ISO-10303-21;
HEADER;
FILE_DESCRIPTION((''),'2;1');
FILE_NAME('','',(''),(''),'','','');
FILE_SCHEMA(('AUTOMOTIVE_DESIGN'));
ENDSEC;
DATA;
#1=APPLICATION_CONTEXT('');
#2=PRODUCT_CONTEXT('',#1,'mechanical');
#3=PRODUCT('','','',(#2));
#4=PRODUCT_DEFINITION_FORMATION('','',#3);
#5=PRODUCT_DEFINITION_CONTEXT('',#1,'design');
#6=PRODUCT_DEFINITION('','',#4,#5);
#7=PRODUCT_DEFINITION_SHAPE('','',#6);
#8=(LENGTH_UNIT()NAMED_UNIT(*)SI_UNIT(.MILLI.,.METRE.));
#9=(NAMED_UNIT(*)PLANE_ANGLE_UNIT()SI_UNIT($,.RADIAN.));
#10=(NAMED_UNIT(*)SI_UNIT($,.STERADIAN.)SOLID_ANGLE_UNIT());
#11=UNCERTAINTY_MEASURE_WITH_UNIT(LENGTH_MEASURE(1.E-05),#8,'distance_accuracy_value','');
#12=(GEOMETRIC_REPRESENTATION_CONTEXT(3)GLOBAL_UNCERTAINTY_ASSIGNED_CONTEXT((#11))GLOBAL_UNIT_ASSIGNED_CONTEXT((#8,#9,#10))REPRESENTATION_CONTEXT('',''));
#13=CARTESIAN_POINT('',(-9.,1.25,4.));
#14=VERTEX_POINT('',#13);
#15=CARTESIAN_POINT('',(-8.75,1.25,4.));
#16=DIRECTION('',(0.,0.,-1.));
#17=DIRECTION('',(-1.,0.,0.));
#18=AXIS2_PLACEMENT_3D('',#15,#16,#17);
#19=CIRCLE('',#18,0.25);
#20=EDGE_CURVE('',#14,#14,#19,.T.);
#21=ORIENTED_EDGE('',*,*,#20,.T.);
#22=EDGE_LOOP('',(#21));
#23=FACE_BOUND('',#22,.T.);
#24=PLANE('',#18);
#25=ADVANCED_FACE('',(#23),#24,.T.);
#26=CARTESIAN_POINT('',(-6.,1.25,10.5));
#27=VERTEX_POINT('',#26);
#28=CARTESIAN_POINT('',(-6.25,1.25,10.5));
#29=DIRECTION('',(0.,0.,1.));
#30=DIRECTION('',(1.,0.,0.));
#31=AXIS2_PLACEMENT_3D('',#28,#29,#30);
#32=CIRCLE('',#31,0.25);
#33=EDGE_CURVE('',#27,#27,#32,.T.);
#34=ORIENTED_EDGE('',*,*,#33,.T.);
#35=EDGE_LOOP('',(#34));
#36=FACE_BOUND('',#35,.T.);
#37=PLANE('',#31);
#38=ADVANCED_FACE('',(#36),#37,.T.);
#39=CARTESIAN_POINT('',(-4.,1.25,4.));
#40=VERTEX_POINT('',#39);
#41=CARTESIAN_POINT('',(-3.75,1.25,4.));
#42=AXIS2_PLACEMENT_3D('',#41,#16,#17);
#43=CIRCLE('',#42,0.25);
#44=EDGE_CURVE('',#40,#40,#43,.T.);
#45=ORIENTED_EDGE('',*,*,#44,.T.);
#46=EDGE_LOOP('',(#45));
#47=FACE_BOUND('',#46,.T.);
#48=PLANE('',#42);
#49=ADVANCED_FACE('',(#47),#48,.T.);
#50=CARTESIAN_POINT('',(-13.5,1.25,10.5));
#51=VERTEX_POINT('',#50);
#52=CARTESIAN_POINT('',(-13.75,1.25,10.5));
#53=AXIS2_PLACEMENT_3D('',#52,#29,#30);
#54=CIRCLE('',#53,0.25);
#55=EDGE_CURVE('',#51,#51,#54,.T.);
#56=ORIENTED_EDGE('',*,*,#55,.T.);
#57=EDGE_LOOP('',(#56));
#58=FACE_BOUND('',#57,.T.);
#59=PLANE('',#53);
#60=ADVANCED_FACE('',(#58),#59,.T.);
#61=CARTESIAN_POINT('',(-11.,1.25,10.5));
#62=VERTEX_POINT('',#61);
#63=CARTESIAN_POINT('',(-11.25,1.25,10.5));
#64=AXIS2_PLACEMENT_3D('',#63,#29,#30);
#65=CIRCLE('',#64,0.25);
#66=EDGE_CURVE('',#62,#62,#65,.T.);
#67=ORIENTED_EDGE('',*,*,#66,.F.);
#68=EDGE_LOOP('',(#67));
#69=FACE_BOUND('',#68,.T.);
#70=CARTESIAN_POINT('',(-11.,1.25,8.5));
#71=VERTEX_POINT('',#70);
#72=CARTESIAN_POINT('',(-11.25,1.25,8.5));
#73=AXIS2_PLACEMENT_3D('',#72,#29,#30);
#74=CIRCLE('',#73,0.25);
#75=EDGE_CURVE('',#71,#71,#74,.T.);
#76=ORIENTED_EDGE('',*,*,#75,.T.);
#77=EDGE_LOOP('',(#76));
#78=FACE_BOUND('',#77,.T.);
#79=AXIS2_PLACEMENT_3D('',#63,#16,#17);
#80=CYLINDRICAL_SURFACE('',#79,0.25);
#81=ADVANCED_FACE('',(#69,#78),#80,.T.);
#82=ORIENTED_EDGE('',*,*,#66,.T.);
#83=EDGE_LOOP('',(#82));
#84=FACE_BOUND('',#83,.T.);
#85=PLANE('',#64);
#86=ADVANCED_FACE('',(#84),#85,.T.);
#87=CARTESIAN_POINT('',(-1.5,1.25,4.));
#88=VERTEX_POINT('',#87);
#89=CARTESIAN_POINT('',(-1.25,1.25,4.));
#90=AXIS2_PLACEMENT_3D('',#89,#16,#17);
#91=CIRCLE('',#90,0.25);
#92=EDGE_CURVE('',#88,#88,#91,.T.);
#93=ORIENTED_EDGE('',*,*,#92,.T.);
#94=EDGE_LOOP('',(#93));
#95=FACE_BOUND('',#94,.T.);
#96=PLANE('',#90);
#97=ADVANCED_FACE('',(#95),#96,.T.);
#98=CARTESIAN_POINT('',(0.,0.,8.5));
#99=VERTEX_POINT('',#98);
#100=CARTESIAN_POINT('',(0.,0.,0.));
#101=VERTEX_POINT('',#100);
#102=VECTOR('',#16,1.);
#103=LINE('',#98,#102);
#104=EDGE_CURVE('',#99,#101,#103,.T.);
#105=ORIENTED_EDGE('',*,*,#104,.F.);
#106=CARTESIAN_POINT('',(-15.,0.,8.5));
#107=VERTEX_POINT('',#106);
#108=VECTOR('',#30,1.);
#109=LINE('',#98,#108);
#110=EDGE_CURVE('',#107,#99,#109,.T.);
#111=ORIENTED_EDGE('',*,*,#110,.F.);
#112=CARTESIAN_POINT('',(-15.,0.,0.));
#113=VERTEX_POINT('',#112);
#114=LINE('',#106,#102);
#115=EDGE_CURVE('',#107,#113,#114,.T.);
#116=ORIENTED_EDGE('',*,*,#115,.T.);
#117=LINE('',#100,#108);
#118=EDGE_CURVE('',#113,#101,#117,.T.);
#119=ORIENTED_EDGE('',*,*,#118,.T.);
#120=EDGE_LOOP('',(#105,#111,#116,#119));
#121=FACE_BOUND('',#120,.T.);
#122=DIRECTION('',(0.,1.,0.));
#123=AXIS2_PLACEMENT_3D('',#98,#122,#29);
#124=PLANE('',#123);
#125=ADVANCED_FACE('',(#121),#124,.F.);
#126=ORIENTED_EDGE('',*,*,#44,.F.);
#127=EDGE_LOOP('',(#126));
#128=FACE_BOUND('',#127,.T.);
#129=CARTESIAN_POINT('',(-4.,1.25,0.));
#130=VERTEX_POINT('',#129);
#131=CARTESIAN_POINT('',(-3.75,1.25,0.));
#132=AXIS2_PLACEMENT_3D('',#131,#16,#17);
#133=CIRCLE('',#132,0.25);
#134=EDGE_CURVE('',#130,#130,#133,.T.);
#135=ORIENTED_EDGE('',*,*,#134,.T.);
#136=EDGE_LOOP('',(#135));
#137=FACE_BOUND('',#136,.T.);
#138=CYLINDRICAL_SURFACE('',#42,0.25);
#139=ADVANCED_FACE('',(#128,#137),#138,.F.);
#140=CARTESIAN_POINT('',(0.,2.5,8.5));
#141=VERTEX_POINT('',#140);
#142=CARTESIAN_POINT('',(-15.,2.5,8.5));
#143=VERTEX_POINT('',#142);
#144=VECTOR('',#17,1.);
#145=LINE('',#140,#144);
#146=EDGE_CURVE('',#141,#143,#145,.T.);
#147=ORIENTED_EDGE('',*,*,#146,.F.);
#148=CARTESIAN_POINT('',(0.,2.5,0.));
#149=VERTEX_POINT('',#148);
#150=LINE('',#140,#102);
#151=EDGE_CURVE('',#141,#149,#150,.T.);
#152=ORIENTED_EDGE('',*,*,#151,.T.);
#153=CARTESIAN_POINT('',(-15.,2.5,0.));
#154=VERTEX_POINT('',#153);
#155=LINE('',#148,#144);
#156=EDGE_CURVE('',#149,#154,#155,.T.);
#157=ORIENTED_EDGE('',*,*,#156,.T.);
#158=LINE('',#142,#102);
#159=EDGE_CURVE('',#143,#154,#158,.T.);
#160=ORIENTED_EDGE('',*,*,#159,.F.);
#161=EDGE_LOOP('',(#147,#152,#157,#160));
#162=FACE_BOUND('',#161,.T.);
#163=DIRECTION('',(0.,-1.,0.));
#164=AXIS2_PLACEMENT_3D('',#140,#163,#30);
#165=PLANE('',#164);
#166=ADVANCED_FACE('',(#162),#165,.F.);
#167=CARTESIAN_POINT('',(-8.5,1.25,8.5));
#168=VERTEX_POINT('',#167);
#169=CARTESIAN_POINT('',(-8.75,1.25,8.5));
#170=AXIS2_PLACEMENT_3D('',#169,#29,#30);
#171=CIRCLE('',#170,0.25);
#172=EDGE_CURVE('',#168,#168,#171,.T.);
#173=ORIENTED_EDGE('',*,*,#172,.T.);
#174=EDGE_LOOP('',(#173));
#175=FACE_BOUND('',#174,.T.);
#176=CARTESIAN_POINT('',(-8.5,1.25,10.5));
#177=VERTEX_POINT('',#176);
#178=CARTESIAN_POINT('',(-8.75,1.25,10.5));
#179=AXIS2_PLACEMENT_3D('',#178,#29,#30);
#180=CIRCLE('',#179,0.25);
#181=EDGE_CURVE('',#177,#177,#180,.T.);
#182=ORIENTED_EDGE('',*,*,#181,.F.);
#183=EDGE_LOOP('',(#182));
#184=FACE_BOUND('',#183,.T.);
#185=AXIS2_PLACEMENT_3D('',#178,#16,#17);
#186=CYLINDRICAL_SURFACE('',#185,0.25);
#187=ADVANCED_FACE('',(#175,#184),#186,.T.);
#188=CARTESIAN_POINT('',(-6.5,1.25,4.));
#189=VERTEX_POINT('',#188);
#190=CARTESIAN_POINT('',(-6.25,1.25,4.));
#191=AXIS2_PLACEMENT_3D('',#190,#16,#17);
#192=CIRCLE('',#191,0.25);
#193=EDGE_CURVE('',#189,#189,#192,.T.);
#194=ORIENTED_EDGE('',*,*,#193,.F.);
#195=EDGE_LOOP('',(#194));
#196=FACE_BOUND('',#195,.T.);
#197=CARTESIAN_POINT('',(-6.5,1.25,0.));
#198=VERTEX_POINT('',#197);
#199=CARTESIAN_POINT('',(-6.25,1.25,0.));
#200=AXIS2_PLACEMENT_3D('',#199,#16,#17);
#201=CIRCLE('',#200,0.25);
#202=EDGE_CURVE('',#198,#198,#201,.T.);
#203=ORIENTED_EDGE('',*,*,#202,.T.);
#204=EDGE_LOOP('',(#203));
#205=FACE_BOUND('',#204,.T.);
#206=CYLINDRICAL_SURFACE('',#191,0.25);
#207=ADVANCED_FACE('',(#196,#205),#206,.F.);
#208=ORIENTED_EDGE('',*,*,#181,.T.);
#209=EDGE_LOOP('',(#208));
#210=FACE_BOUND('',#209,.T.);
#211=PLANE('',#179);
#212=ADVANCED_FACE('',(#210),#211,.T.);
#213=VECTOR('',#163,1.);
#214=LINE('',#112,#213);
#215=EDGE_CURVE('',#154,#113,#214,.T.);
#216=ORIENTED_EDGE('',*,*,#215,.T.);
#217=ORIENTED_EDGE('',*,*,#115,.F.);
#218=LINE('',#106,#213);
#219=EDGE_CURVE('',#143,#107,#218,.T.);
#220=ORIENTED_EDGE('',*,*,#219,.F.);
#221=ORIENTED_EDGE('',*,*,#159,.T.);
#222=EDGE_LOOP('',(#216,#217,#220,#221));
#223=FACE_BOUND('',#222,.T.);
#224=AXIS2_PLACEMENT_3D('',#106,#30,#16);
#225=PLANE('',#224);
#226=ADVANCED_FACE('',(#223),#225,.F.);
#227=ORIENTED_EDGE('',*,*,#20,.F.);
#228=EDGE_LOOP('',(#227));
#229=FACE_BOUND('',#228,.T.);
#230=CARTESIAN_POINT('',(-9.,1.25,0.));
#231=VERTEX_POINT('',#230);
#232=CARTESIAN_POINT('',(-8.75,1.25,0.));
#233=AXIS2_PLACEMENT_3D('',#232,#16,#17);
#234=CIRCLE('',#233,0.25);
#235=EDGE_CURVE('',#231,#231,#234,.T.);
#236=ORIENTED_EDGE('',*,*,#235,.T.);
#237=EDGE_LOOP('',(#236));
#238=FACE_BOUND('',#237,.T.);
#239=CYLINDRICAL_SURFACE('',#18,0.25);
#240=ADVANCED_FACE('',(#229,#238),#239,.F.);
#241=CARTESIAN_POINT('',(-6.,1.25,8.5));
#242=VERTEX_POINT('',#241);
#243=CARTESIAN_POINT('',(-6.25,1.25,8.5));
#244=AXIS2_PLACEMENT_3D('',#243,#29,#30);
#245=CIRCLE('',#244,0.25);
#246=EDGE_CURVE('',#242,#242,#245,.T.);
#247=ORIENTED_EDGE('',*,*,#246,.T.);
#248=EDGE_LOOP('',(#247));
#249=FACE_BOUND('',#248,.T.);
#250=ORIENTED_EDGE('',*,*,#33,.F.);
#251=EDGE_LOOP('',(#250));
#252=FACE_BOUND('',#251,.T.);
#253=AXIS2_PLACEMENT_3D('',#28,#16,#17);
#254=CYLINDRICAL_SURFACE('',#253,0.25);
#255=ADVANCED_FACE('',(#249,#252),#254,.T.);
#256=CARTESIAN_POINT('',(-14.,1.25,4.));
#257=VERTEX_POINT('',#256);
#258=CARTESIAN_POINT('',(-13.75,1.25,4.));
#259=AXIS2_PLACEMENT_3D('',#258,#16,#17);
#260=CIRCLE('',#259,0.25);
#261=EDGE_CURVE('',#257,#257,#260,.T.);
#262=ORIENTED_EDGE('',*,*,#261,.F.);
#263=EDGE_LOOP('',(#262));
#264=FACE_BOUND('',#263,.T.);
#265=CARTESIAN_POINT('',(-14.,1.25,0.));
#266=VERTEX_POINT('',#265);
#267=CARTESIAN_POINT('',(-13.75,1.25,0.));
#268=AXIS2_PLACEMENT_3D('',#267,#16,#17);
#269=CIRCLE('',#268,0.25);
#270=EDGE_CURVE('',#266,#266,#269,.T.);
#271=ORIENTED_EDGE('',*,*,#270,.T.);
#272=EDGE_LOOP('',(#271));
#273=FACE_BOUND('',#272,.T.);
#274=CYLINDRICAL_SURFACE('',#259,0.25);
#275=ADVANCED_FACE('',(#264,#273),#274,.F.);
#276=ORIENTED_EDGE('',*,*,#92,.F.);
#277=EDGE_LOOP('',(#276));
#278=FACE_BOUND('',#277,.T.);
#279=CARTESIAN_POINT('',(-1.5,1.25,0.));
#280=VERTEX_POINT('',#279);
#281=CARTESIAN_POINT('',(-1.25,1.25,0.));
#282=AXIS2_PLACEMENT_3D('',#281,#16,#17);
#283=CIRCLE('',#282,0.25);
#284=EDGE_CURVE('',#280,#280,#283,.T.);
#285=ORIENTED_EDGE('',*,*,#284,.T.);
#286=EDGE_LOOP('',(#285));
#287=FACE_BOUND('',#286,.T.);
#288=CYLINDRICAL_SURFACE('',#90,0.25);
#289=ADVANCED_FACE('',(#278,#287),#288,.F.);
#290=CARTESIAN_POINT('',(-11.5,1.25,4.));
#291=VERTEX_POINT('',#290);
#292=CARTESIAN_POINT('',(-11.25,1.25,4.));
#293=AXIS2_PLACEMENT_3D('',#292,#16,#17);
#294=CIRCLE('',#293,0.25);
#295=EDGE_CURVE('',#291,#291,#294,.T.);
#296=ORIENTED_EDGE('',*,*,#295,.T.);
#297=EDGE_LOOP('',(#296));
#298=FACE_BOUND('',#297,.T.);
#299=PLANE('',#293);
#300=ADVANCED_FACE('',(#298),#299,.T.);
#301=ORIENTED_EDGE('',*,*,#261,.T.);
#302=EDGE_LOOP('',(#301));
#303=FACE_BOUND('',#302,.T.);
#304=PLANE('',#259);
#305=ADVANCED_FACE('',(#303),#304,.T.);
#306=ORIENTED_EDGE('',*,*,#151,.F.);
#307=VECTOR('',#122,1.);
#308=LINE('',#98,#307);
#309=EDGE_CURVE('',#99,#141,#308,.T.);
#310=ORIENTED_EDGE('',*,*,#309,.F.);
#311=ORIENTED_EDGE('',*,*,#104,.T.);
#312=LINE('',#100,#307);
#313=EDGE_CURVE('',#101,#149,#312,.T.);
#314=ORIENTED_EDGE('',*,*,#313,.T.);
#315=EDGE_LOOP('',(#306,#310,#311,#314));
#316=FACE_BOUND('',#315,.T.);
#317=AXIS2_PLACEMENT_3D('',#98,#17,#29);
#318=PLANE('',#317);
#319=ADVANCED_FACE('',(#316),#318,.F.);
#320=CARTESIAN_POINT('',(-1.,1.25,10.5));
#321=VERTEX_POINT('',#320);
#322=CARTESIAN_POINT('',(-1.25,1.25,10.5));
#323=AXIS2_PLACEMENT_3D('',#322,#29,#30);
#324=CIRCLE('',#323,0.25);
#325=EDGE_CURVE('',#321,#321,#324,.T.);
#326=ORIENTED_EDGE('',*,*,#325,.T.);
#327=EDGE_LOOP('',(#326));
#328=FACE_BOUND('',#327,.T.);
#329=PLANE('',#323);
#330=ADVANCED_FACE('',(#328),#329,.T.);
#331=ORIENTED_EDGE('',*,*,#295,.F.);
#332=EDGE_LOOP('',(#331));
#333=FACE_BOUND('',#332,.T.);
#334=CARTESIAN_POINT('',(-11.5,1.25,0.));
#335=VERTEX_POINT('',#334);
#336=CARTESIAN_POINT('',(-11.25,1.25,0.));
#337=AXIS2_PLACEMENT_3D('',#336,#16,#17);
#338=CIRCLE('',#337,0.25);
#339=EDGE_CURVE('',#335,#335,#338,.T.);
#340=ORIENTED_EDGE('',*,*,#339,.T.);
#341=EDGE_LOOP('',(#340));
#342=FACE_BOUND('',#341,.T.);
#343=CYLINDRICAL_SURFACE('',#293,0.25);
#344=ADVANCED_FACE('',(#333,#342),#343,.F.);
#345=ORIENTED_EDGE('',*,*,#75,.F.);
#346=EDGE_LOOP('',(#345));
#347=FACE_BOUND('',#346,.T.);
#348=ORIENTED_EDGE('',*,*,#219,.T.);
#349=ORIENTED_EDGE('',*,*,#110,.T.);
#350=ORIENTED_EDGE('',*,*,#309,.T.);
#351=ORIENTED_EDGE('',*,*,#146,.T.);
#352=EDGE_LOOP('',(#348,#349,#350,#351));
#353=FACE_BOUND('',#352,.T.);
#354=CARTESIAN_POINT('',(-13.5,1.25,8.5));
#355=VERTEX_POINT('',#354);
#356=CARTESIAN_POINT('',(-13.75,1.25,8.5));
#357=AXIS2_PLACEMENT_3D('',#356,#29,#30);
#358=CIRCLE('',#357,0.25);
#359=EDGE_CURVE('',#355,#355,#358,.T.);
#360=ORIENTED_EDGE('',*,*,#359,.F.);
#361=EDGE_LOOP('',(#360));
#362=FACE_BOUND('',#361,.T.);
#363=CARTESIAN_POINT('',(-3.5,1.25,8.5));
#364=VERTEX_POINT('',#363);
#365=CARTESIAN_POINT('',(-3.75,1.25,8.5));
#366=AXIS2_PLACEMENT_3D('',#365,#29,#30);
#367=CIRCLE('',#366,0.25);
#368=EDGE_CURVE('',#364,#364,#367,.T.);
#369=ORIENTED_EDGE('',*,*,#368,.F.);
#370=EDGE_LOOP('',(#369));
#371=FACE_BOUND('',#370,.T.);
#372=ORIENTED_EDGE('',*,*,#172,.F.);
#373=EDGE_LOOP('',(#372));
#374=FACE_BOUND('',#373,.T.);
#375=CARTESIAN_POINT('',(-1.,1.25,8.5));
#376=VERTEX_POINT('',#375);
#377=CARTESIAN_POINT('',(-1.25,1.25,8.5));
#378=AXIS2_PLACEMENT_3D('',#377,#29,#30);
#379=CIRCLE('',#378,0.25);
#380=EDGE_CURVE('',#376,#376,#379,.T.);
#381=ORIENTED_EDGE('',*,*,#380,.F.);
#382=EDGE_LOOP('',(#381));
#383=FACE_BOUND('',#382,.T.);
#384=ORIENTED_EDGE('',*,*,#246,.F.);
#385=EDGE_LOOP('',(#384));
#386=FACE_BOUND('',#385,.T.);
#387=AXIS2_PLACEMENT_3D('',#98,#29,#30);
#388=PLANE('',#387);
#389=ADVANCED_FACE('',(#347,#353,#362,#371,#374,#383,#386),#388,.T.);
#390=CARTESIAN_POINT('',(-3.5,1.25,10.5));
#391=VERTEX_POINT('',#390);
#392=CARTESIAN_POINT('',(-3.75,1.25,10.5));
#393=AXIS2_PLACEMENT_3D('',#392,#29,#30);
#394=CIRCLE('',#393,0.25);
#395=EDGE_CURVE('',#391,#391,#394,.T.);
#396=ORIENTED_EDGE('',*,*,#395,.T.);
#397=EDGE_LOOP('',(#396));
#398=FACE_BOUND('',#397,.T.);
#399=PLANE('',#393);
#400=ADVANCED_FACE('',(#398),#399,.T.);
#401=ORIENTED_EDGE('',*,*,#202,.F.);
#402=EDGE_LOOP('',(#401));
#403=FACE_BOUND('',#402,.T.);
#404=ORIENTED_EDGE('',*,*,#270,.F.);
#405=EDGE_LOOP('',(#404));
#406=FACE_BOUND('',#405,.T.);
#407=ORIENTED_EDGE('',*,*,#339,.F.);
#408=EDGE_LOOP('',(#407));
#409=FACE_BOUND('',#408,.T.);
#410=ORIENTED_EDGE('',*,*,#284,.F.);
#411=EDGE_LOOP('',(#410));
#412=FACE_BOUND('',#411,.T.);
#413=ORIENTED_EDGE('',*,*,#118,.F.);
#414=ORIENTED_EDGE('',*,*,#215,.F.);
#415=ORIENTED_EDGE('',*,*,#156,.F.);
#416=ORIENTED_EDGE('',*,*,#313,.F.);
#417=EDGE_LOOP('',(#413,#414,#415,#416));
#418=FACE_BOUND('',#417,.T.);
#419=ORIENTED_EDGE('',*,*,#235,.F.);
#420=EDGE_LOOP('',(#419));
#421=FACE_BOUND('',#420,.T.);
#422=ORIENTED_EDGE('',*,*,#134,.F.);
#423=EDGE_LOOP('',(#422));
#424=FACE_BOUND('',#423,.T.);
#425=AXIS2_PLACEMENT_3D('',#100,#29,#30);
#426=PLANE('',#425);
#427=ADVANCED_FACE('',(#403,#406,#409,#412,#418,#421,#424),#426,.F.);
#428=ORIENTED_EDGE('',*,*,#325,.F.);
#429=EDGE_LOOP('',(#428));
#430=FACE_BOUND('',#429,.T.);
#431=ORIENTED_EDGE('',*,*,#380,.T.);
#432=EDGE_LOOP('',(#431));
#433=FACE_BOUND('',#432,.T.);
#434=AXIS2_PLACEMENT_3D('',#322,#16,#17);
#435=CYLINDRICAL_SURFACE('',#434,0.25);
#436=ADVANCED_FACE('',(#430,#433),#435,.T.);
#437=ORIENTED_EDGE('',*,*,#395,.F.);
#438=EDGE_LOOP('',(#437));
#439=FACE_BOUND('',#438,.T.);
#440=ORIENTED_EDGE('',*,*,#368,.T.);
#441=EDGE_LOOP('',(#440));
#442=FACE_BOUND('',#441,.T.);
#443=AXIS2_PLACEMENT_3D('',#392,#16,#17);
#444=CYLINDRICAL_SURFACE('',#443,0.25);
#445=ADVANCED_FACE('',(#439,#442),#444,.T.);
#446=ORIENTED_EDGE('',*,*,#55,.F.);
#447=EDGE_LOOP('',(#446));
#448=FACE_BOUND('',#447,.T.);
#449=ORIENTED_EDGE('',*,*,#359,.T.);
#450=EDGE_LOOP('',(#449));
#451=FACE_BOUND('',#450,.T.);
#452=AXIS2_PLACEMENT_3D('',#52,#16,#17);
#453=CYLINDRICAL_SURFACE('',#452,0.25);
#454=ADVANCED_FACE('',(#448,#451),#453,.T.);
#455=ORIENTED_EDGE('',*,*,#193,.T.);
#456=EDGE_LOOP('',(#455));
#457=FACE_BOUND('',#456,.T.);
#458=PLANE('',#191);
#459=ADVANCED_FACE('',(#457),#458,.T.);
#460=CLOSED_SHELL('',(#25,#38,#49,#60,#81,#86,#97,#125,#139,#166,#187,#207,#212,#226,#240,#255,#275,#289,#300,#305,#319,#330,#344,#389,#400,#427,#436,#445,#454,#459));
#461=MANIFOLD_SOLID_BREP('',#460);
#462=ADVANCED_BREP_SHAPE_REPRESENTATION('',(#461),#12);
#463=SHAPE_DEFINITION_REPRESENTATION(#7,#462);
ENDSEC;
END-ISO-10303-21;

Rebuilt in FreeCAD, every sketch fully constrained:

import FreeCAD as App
import Part
import Sketcher

V = App.Vector
Q = App.Units.Quantity


def add_polygon(sketch, points):
    """Adds a closed chain of lines whose ends are joined by coincident constraints."""
    first, n = sketch.GeometryCount, len(points)
    for a, b in zip(points, points[1:] + points[:1]):
        sketch.addGeometry(Part.LineSegment(App.Vector(*a, 0), App.Vector(*b, 0)), False)
    for i in range(n):
        sketch.addConstraint(Sketcher.Constraint("Coincident", first + i, 2, first + (i + 1) % n, 1))

doc = App.newDocument("Part")
body = doc.addObject("PartDesign::Body", "Body")

# Sketch on XY plane
sketch1 = body.newObject("Sketcher::SketchObject", "Sketch")
sketch1.AttachmentSupport = (doc.getObject("XY_Plane"), [""])
sketch1.MapMode = "FlatFace"
add_polygon(sketch1, [(-2.5, 2.5), (-2.5, 0), (0, 0), (0, 2.5)])  # lines 0-3
sketch1.addConstraint([
    Sketcher.Constraint("Vertical", 0),
    Sketcher.Constraint("Horizontal", 1),
    Sketcher.Constraint("Vertical", 2),
    Sketcher.Constraint("Horizontal", 3),
    Sketcher.Constraint("Coincident", 1, 2, -1, 1),
    Sketcher.Constraint("Equal", 3, 0),
    Sketcher.Constraint("DistanceX", 1, 1, 1, 2, Q("2.5 mm")),
])
pad1 = body.newObject("PartDesign::Pad", "Pad")
pad1.Profile = sketch1
pad1.Length = 8.5

# Sketch on XY plane
sketch2 = body.newObject("Sketcher::SketchObject", "Sketch001")
sketch2.AttachmentSupport = (doc.getObject("XY_Plane"), [""])
sketch2.MapMode = "FlatFace"
sketch2.AttachmentOffset = App.Placement(V(0, 0, 8.5), App.Rotation())
sketch2.addGeometry(Part.Circle(V(-1.25, 1.25, 0), V(0, 0, 1), 0.25), False)
sketch2.addConstraint([
    Sketcher.Constraint("Diameter", 0, Q("0.5 mm")),
    Sketcher.Constraint("DistanceX", 0, 3, -1, 1, Q("1.25 mm")),
    Sketcher.Constraint("DistanceY", -1, 1, 0, 3, Q("1.25 mm")),
])
pad2 = body.newObject("PartDesign::Pad", "Pad001")
pad2.Profile = sketch2
pad2.Length = 2

# Sketch on XY plane
sketch3 = body.newObject("Sketcher::SketchObject", "Sketch002")
sketch3.AttachmentSupport = (doc.getObject("XY_Plane"), [""])
sketch3.MapMode = "FlatFace"
sketch3.addGeometry(Part.Circle(V(-1.25, 1.25, 0), V(0, 0, 1), 0.25), False)
sketch3.addConstraint([
    Sketcher.Constraint("Diameter", 0, Q("0.5 mm")),
    Sketcher.Constraint("DistanceX", 0, 3, -1, 1, Q("1.25 mm")),
    Sketcher.Constraint("DistanceY", -1, 1, 0, 3, Q("1.25 mm")),
])
pocket1 = body.newObject("PartDesign::Pocket", "Pocket")
pocket1.Profile = sketch3
pocket1.Length = 4
pocket1.Reversed = True
doc.recompute()

linearpattern = body.newObject("PartDesign::LinearPattern", "LinearPattern")
linearpattern.Originals = [pad1, pad2, pocket1]
linearpattern.Direction = (doc.getObject("X_Axis"), [""])
linearpattern.Mode = "offset"
linearpattern.Offset = 2.5
linearpattern.Occurrences = 6
linearpattern.Reversed = True
body.Tip = linearpattern

doc.recompute()
